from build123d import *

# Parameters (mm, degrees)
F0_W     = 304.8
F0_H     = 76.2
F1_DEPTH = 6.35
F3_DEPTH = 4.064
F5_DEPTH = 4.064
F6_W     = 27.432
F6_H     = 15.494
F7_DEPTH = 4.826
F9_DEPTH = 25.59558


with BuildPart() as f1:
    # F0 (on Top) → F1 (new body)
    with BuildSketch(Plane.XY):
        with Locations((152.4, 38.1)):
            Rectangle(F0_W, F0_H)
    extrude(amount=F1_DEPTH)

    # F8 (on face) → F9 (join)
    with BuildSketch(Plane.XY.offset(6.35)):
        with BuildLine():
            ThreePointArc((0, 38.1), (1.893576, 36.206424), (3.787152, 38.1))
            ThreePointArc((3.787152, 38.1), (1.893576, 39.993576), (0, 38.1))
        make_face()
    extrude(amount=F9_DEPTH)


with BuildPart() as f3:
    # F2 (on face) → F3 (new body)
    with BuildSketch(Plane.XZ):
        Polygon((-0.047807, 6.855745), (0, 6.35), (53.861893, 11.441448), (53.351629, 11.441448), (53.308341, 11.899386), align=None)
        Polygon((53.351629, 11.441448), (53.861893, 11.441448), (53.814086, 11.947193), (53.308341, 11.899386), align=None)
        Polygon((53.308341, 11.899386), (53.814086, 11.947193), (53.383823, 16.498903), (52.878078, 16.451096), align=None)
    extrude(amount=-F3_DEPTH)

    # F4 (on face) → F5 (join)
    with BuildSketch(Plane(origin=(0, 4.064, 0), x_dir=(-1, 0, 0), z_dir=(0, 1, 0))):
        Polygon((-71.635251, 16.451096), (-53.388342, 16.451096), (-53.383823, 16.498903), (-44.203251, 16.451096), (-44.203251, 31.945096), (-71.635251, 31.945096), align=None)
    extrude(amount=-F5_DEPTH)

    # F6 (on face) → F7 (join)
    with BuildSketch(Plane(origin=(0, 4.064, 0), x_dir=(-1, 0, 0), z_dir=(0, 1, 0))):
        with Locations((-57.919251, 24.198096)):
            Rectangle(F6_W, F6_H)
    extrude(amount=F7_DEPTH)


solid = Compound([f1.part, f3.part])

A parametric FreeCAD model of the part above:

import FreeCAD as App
import Part
import Sketcher
from FreeCAD import Vector
Q = App.Units.Quantity

doc = App.newDocument("Part")
body = doc.addObject("PartDesign::Body", "Body")

sketch1 = body.newObject("Sketcher::SketchObject", "Sketch")
sketch1.AttachmentSupport = (doc.getObject("XY_Plane"), [""])
sketch1.MapMode = "FlatFace"
sketch1.addGeometry([
    Part.LineSegment(Vector(0, 76, 0), Vector(0, 0, 0)),
    Part.LineSegment(Vector(0, 0, 0), Vector(305, 0, 0)),
    Part.LineSegment(Vector(305, 0, 0), Vector(305, 76, 0)),
    Part.LineSegment(Vector(305, 76, 0), Vector(0, 76, 0)),
], False)
sketch1.addConstraint([
    Sketcher.Constraint("Coincident", 0, 2, 1, 1),
    Sketcher.Constraint("Coincident", 1, 2, 2, 1),
    Sketcher.Constraint("Coincident", 2, 2, 3, 1),
    Sketcher.Constraint("Coincident", 3, 2, 0, 1),
    Sketcher.Constraint("Vertical", 0),
    Sketcher.Constraint("Horizontal", 1),
    Sketcher.Constraint("Vertical", 2),
    Sketcher.Constraint("Horizontal", 3),
    Sketcher.Constraint("Coincident", 0, 2, -1, 1),
    Sketcher.Constraint("DistanceX", 1, 1, 1, 2, Q("12 in")),
    Sketcher.Constraint("DistanceY", 0, 2, 0, 1, Q("3 in")),
])
pad1 = body.newObject("PartDesign::Pad", "Pad")
pad1.Profile = sketch1
pad1.Length = Q("0.25 in")

sketch2 = body.newObject("Sketcher::SketchObject", "Sketch001")
sketch2.AttachmentSupport = (doc.getObject("XY_Plane"), [""])
sketch2.MapMode = "FlatFace"
sketch2.AttachmentOffset = App.Placement(Vector(0, 0, 0.25 * 25.4), App.Rotation())
sketch2.addGeometry(Part.Circle(Vector(1.9, 38.1, 0), Vector(0, 0, 1), 1.9), False)
sketch2.addConstraint([
    Sketcher.Constraint("DistanceY", -1, 1, 0, 3, Q("1.5 in")),
    Sketcher.Constraint("Diameter", 0, 3.787152),
    Sketcher.Constraint("DistanceX", -1, 1, 0, 3, 1.893576),
])
pad2 = body.newObject("PartDesign::Pad", "Pad001")
pad2.Profile = sketch2
pad2.Length = Q("1.0077 in")
body2 = doc.addObject("PartDesign::Body", "Body001")

sketch3 = body2.newObject("Sketcher::SketchObject", "Sketch002")
sketch3.AttachmentSupport = (doc.getObject("XZ_Plane001"), [""])
sketch3.MapMode = "FlatFace"
sketch3.addGeometry([
    Part.LineSegment(Vector(0, 6.9, 0), Vector(0, 6.3, 0)),
    Part.LineSegment(Vector(0, 6.3, 0), Vector(53.9, 11.4, 0)),
    Part.LineSegment(Vector(53.9, 11.4, 0), Vector(53.8, 11.9, 0)),
    Part.LineSegment(Vector(53.8, 11.9, 0), Vector(53.4, 16.5, 0)),
    Part.LineSegment(Vector(53.4, 16.5, 0), Vector(52.9, 16.5, 0)),
    Part.LineSegment(Vector(52.9, 16.5, 0), Vector(53.3, 11.9, 0)),
    Part.LineSegment(Vector(53.3, 11.9, 0), Vector(0, 6.9, 0)),
], False)
sketch3.addConstraint([
    Sketcher.Constraint("Coincident", 0, 2, 1, 1),
    Sketcher.Constraint("Coincident", 1, 2, 2, 1),
    Sketcher.Constraint("Coincident", 2, 2, 3, 1),
    Sketcher.Constraint("Coincident", 3, 2, 4, 1),
    Sketcher.Constraint("Coincident", 4, 2, 5, 1),
    Sketcher.Constraint("Coincident", 5, 2, 6, 1),
    Sketcher.Constraint("Coincident", 6, 2, 0, 1),
    Sketcher.Constraint("PointOnObject", 0, 2, -2),
    Sketcher.Constraint("Perpendicular", 0, 1),
    Sketcher.Constraint("Perpendicular", 1, 2),
    Sketcher.Constraint("Parallel", 2, 3),
    Sketcher.Constraint("Perpendicular", 3, 4),
    Sketcher.Constraint("Perpendicular", 4, 5),
    Sketcher.Constraint("Perpendicular", 5, 6),
    Sketcher.Constraint("Equal", 0, 2),
    Sketcher.Constraint("Equal", 2, 4),
    Sketcher.Constraint("Angle", 0, Q("-84.599998 deg")),
    Sketcher.Constraint("Distance", 0, Q("0.02 in")),
    Sketcher.Constraint("Distance", 1, Q("2.13 in")),
    Sketcher.Constraint("Distance", 3, Q("0.18 in")),
    Sketcher.Constraint("DistanceY", -1, 1, 0, 2, Q("0.25 in")),
])
pad3 = body2.newObject("PartDesign::Pad", "Pad002")
pad3.Profile = sketch3
pad3.Length = Q("0.16 in")
pad3.Reversed = True

sketch4 = body2.newObject("Sketcher::SketchObject", "Sketch003")
sketch4.AttachmentSupport = (doc.getObject("XZ_Plane001"), [""])
sketch4.MapMode = "FlatFace"
sketch4.AttachmentOffset = App.Placement(Vector(0, 0, -0.16 * 25.4), App.Rotation())
sketch4.addGeometry([
    Part.LineSegment(Vector(71.635, 16.451, 0), Vector(53.388, 16.451, 0)),
    Part.LineSegment(Vector(53.388, 16.451, 0), Vector(53.384, 16.499, 0)),
    Part.LineSegment(Vector(53.384, 16.499, 0), Vector(44.203, 16.451, 0)),
    Part.LineSegment(Vector(44.203, 16.451, 0), Vector(44.203, 31.945, 0)),
    Part.LineSegment(Vector(44.203, 31.945, 0), Vector(71.635, 31.945, 0)),
    Part.LineSegment(Vector(71.635, 31.945, 0), Vector(71.635, 16.451, 0)),
], False)
sketch4.addConstraint([
    Sketcher.Constraint("Coincident", 0, 2, 1, 1),
    Sketcher.Constraint("Coincident", 1, 2, 2, 1),
    Sketcher.Constraint("Coincident", 2, 2, 3, 1),
    Sketcher.Constraint("Coincident", 3, 2, 4, 1),
    Sketcher.Constraint("Coincident", 4, 2, 5, 1),
    Sketcher.Constraint("Coincident", 5, 2, 0, 1),
    Sketcher.Constraint("Horizontal", 0),
    Sketcher.Constraint("Vertical", 3),
    Sketcher.Constraint("Horizontal", 4),
    Sketcher.Constraint("Vertical", 5),
    Sketcher.Constraint("Horizontal", 0, 2, 2, 2),
    Sketcher.Constraint("DistanceX", 4, 1, 4, 2, Q("1.08 in")),
    Sketcher.Constraint("DistanceY", 3, 1, 3, 2, Q("0.61 in")),
    Sketcher.Constraint("DistanceX", 0, 2, 0, 1, 18.246909),
    Sketcher.Constraint("Distance", 1, 0.04802),
    Sketcher.Constraint("DistanceX", -1, 1, 2, 2, 44.203251),
    Sketcher.Constraint("DistanceX", 1, 2, 0, 2, 0.004519),
    Sketcher.Constraint("DistanceY", -1, 1, 0, 2, 16.451096),
])
pad4 = body2.newObject("PartDesign::Pad", "Pad003")
pad4.Profile = sketch4
pad4.Length = Q("0.16 in")

sketch5 = body2.newObject("Sketcher::SketchObject", "Sketch004")
sketch5.AttachmentSupport = (doc.getObject("XZ_Plane001"), [""])
sketch5.MapMode = "FlatFace"
sketch5.AttachmentOffset = App.Placement(Vector(0, 0, -0.16 * 25.4), App.Rotation())
sketch5.addGeometry([
    Part.LineSegment(Vector(72, 32, 0), Vector(72, 16, 0)),
    Part.LineSegment(Vector(72, 16, 0), Vector(44, 16, 0)),
    Part.LineSegment(Vector(44, 16, 0), Vector(44, 32, 0)),
    Part.LineSegment(Vector(44, 32, 0), Vector(72, 32, 0)),
], False)
sketch5.addConstraint([
    Sketcher.Constraint("Coincident", 0, 2, 1, 1),
    Sketcher.Constraint("Coincident", 1, 2, 2, 1),
    Sketcher.Constraint("Coincident", 2, 2, 3, 1),
    Sketcher.Constraint("Coincident", 3, 2, 0, 1),
    Sketcher.Constraint("Vertical", 0),
    Sketcher.Constraint("Horizontal", 1),
    Sketcher.Constraint("Vertical", 2),
    Sketcher.Constraint("Horizontal", 3),
    Sketcher.Constraint("DistanceX", 1, 2, 1, 1, Q("1.08 in")),
    Sketcher.Constraint("DistanceY", 0, 2, 0, 1, Q("0.61 in")),
    Sketcher.Constraint("DistanceX", -1, 1, 0, 2, 71.635251),
    Sketcher.Constraint("DistanceY", -1, 1, 0, 2, 16.451096),
])
pad5 = body2.newObject("PartDesign::Pad", "Pad004")
pad5.Profile = sketch5
pad5.Length = Q("0.19 in")
pad5.Reversed = True

doc.recompute()
